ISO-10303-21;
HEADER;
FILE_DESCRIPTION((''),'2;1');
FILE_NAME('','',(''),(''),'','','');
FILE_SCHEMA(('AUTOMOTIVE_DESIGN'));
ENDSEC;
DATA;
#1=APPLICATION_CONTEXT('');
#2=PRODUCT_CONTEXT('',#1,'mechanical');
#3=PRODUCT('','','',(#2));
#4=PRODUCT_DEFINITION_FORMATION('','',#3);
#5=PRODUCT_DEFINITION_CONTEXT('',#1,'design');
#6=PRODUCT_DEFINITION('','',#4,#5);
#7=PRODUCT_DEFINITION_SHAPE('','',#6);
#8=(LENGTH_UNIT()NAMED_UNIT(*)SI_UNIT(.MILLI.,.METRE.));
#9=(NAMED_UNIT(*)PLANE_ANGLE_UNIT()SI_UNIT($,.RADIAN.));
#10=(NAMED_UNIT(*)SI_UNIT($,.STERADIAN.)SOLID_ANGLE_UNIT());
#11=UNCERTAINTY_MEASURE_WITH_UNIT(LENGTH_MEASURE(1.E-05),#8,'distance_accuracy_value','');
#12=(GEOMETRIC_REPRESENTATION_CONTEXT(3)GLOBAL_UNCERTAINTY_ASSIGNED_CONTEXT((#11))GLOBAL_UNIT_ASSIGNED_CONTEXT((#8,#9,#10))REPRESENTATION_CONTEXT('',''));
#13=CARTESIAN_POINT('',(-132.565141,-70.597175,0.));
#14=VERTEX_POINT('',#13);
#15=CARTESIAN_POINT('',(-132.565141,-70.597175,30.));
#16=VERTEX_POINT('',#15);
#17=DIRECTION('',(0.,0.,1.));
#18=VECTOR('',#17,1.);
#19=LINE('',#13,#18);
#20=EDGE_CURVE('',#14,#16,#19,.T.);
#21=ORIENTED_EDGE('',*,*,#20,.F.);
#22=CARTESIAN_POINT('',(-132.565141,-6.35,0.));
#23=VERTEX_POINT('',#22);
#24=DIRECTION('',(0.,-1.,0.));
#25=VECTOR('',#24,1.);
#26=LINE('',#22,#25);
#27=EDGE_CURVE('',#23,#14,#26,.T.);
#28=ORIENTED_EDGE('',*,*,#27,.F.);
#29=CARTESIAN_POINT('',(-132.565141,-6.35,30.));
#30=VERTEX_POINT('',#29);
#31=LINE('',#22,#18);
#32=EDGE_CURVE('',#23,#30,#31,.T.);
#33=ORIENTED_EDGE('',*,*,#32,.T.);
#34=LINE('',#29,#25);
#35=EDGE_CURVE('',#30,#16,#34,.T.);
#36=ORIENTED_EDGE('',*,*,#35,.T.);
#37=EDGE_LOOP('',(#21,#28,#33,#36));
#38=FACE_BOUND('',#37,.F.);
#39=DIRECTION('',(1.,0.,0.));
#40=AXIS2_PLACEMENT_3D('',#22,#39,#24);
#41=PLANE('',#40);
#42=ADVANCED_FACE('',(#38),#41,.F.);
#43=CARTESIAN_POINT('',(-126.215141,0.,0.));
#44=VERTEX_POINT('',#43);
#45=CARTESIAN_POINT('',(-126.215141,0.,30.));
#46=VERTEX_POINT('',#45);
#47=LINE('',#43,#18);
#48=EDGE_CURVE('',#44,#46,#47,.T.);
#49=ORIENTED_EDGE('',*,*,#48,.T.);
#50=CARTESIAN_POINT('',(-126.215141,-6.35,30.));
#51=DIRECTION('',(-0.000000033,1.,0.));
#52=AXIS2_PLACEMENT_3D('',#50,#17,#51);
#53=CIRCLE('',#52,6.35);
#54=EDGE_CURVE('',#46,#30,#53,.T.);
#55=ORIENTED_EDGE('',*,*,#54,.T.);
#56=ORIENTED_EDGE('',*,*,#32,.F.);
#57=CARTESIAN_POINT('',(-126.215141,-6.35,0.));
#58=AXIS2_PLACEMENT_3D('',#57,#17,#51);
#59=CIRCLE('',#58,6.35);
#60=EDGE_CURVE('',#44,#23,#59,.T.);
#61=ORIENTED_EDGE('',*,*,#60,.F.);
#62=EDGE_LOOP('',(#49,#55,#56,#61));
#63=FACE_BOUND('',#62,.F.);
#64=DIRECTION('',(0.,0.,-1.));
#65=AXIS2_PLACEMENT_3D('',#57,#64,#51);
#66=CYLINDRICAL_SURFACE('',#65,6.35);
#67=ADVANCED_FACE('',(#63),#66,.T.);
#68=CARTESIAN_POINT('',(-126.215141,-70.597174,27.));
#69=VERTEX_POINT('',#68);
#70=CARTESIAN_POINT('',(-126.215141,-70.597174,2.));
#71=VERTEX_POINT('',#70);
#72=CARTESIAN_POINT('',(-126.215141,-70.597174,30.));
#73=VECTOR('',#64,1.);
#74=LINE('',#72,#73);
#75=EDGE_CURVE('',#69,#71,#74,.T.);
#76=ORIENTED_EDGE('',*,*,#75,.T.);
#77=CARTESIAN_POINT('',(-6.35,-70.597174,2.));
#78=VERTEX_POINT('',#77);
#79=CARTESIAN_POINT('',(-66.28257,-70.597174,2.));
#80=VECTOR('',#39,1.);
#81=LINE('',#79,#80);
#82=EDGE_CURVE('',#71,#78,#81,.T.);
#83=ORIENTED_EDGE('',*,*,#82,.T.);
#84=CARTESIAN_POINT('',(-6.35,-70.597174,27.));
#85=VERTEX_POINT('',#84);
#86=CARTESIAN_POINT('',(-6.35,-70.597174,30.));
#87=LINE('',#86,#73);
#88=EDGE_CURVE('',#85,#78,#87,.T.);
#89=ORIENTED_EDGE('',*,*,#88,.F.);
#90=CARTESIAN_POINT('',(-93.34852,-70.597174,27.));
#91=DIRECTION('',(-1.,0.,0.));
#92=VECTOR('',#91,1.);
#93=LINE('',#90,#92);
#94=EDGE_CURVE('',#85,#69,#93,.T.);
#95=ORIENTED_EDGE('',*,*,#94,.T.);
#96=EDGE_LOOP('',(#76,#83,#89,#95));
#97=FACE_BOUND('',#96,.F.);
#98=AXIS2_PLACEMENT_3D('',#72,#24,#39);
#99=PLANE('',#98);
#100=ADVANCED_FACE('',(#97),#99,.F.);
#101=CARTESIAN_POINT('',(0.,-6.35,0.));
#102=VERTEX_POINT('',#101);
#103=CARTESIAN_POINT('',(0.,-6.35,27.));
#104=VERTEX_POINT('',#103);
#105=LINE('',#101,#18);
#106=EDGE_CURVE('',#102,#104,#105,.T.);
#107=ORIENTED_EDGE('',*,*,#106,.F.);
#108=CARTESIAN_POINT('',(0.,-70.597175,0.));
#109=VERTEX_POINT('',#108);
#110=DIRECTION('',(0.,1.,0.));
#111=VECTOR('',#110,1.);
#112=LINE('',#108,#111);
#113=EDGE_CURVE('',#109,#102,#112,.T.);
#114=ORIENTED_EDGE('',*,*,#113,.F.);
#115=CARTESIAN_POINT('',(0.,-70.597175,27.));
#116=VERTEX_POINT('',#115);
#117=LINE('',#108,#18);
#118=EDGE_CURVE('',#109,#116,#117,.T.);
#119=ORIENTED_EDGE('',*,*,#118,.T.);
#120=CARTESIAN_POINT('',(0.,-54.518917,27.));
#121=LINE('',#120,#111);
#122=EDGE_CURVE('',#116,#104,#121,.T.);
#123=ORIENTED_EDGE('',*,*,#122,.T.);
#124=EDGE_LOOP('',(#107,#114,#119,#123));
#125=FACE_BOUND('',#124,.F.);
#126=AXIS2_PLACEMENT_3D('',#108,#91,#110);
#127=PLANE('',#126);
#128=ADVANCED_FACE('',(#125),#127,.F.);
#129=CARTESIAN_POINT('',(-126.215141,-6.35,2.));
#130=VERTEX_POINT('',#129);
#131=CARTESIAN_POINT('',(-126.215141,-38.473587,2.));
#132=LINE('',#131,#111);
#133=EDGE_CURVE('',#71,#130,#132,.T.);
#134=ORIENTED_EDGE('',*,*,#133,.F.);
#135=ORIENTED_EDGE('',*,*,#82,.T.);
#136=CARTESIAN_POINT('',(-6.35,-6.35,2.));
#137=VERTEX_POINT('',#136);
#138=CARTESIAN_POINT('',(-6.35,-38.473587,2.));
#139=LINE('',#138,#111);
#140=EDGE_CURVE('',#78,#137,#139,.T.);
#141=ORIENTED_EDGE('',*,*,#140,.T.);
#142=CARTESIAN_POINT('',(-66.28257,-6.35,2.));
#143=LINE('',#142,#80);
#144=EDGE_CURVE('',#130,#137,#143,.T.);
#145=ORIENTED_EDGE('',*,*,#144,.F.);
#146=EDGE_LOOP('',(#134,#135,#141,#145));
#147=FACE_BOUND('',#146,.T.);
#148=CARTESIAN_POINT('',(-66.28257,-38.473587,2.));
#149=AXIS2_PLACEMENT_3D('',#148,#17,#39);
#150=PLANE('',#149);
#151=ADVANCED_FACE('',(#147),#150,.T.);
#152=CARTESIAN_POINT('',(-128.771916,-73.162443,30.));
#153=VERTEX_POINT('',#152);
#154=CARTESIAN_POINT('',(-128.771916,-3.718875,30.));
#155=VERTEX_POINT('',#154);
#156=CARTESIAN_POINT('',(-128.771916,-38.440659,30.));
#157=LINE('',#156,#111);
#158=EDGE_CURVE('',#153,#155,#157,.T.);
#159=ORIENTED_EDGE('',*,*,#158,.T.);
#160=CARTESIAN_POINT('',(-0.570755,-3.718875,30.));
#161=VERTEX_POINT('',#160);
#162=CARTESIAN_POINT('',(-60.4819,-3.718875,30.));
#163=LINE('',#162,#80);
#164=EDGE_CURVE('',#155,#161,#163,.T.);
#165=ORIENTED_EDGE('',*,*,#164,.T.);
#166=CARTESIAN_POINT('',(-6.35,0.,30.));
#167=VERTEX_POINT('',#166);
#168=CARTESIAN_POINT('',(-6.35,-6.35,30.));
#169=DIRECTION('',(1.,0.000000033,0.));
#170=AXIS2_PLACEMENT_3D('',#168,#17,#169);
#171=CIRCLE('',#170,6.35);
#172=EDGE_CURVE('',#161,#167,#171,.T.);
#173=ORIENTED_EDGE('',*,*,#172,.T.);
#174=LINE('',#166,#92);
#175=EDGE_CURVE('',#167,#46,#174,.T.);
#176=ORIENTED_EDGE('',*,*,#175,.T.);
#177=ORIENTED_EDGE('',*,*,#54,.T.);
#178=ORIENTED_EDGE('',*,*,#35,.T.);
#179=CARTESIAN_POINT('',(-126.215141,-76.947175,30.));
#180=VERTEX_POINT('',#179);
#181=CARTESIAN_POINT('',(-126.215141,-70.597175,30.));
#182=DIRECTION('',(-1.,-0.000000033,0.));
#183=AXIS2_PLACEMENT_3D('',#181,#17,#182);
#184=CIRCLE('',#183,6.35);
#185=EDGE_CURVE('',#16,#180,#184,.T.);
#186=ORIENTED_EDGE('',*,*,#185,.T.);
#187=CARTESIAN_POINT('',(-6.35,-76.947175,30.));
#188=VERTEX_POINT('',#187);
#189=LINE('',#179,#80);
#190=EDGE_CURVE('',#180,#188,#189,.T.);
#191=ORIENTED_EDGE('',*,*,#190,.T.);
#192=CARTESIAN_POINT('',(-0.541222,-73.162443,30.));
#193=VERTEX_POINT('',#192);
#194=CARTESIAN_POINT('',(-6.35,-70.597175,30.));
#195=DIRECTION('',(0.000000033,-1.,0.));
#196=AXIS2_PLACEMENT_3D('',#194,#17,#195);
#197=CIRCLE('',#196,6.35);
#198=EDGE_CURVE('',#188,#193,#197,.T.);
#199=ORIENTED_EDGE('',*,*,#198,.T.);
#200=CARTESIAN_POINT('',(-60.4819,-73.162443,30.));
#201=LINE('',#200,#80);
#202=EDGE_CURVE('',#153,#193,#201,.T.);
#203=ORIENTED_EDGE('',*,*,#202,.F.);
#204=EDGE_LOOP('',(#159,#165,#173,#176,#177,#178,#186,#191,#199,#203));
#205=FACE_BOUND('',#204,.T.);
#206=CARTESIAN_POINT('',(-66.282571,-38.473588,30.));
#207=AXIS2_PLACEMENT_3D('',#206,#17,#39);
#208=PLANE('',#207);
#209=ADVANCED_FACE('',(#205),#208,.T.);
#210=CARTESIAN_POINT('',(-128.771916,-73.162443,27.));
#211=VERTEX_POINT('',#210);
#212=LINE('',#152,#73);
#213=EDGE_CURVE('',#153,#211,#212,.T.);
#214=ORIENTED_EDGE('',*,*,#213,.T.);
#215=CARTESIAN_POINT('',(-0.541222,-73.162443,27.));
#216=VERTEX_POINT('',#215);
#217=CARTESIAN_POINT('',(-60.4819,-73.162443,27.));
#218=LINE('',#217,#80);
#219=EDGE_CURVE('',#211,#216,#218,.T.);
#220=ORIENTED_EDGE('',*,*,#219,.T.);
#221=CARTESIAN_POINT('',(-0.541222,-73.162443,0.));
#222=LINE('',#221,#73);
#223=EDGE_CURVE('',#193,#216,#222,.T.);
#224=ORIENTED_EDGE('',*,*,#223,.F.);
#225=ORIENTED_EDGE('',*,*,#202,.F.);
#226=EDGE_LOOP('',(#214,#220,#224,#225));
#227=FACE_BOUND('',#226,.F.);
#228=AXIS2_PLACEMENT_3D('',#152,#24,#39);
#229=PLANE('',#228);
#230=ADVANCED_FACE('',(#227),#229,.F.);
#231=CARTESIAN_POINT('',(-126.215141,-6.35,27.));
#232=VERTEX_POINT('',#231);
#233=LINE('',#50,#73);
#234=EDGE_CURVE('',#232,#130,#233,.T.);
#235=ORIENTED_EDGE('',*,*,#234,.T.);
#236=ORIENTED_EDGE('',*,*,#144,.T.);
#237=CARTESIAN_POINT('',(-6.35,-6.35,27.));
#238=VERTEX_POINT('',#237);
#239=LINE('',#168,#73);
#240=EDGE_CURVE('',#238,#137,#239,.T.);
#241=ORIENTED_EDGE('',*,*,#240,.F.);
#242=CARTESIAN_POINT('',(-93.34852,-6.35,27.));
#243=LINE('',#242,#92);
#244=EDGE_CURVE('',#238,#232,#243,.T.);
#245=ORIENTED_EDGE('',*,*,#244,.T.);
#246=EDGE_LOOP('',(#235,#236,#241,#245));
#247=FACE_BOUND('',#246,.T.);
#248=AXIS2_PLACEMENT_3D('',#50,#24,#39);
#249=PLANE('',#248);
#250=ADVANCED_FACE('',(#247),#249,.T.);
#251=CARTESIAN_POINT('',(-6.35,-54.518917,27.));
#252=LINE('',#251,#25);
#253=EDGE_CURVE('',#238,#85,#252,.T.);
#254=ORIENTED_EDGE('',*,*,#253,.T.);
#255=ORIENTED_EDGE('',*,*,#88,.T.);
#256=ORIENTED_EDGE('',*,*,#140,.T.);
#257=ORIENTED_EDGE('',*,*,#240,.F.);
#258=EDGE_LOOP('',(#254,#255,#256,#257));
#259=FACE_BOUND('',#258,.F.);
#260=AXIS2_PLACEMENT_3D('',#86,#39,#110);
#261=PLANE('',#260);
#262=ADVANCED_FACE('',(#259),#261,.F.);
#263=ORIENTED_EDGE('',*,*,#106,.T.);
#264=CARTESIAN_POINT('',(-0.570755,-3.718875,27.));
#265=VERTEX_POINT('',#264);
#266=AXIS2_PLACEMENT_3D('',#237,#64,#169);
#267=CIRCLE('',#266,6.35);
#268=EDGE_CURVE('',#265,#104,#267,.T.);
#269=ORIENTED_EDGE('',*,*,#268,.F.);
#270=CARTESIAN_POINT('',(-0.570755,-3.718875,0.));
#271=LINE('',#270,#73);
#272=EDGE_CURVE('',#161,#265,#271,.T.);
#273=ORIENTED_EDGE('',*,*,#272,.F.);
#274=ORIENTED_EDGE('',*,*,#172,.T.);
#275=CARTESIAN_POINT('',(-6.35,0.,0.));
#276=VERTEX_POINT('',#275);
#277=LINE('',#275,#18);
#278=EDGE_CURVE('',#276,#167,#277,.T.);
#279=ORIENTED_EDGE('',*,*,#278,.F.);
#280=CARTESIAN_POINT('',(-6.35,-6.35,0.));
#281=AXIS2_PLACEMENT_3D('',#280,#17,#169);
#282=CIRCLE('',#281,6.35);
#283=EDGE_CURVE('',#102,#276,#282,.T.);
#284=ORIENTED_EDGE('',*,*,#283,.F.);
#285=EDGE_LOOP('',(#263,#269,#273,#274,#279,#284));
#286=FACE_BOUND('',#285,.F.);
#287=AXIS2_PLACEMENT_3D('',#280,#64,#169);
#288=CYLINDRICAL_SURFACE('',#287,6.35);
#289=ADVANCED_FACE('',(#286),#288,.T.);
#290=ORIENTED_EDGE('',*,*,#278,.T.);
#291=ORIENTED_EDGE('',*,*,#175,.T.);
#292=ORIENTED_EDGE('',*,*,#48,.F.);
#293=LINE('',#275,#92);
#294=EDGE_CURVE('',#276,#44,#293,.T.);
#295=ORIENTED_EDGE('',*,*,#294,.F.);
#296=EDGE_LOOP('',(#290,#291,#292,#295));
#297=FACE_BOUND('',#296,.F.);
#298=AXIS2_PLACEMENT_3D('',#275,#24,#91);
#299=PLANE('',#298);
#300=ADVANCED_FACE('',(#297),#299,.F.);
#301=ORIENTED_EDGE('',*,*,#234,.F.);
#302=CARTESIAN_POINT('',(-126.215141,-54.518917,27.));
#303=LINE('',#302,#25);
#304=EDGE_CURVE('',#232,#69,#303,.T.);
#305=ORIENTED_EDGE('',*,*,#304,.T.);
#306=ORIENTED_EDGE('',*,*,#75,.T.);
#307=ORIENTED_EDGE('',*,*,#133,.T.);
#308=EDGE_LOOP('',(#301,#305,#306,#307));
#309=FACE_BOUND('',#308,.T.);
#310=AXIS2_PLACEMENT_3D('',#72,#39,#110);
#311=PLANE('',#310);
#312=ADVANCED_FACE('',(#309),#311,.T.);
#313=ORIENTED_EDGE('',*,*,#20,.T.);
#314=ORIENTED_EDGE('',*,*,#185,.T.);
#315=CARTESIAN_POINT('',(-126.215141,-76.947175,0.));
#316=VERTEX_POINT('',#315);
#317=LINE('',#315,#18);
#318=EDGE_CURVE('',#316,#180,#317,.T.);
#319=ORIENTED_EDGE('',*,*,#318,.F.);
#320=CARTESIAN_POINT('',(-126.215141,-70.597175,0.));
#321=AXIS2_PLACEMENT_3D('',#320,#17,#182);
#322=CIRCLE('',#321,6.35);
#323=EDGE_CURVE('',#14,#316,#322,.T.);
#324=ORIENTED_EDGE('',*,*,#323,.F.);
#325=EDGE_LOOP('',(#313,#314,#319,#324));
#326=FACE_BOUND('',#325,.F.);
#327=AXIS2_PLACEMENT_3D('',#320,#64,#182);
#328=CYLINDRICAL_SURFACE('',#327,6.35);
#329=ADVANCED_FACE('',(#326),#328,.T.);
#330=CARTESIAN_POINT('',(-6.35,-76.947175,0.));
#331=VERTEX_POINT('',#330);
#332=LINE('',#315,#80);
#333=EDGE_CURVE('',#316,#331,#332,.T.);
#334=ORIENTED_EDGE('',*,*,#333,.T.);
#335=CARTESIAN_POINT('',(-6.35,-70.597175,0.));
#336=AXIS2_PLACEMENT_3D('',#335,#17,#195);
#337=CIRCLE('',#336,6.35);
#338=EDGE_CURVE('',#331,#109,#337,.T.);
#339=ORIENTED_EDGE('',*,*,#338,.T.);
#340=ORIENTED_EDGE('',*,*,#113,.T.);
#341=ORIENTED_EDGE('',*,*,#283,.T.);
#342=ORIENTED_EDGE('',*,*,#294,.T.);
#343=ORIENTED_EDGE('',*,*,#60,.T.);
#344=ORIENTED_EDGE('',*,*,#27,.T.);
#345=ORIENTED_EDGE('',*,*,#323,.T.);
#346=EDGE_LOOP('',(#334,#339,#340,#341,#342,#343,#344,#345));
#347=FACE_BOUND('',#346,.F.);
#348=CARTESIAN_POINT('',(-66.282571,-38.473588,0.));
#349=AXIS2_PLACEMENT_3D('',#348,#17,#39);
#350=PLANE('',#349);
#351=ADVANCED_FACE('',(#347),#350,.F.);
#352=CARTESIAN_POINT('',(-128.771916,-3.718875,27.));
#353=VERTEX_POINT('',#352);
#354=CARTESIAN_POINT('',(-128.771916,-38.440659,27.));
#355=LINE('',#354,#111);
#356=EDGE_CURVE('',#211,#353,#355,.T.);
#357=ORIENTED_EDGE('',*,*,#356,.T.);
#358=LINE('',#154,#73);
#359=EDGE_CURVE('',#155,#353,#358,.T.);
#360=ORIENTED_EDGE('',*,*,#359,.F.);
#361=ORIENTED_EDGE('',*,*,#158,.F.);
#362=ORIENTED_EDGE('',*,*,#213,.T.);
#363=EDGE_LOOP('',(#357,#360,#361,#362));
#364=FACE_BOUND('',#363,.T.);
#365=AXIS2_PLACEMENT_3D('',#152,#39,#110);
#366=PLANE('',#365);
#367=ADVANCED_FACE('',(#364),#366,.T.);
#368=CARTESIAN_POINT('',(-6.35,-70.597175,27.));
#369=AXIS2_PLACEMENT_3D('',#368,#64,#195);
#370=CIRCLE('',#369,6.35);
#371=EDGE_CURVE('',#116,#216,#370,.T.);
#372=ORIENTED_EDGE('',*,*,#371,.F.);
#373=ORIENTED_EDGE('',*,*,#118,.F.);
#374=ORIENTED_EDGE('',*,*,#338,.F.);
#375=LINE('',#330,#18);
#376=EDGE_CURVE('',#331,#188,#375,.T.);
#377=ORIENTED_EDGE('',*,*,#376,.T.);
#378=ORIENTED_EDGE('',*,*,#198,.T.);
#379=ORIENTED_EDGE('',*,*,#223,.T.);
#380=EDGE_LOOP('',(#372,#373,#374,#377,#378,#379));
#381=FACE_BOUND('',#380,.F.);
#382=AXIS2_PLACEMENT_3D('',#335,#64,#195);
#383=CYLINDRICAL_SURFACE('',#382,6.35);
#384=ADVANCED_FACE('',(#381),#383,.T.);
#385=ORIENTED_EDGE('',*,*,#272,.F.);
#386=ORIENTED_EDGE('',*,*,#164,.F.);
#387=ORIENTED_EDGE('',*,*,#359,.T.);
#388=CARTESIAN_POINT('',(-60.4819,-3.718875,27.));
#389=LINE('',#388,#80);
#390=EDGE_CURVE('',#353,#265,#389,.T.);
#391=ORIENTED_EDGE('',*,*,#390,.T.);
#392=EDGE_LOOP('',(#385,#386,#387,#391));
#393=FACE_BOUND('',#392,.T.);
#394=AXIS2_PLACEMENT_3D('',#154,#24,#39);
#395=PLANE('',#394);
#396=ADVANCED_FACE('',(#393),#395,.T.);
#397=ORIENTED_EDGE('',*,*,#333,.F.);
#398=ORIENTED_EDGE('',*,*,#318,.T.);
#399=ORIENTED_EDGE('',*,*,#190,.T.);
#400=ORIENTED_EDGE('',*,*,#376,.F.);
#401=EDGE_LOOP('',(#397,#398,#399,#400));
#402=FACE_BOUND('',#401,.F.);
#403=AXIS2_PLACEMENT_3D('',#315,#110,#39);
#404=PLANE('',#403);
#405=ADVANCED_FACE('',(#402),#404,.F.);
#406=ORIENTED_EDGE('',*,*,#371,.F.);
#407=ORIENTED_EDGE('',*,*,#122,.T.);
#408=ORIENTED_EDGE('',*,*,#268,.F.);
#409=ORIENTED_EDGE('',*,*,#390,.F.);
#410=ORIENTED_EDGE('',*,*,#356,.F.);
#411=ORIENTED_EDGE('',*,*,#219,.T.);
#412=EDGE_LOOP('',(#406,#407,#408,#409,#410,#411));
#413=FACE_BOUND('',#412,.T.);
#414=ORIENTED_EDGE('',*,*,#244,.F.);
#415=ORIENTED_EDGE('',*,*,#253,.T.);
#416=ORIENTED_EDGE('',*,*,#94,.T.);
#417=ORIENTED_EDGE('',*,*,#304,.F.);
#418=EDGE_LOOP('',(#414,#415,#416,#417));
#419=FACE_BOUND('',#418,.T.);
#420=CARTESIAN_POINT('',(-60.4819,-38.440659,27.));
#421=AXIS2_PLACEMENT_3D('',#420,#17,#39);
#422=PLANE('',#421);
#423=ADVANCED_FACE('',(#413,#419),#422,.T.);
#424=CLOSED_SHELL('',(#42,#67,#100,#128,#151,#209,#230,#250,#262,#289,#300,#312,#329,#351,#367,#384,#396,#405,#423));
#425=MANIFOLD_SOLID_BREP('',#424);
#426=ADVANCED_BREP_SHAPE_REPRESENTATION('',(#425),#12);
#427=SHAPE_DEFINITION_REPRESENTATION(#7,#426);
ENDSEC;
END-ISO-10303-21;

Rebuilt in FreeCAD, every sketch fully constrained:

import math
import FreeCAD as App
import Part
import Sketcher
from FreeCAD import Vector


def add_polygon(sketch, points):
    """Adds a closed chain of lines whose ends are joined by coincident constraints."""
    first, n = sketch.GeometryCount, len(points)
    for a, b in zip(points, points[1:] + points[:1]):
        sketch.addGeometry(Part.LineSegment(App.Vector(*a, 0), App.Vector(*b, 0)), False)
    for i in range(n):
        sketch.addConstraint(Sketcher.Constraint("Coincident", first + i, 2, first + (i + 1) % n, 1))

doc = App.newDocument("Part")
body = doc.addObject("PartDesign::Body", "Body")

# Sketch on XY plane
sketch1 = body.newObject("Sketcher::SketchObject", "Sketch")
sketch1.AttachmentSupport = (doc.getObject("XY_Plane"), [""])
sketch1.MapMode = "FlatFace"
sketch1.addGeometry([
    Part.ArcOfCircle(Part.Circle(Vector(-6, -6, 0), Vector(0, 0, 1), 6), math.radians(0), math.radians(90)),  # 0
    Part.LineSegment(Vector(-6, 0, 0), Vector(-126, 0, 0)),  # 1
    Part.ArcOfCircle(Part.Circle(Vector(-126, -6, 0), Vector(0, 0, 1), 6), math.radians(90), math.radians(180)),  # 2
    Part.LineSegment(Vector(-133, -6, 0), Vector(-133, -71, 0)),  # 3
    Part.ArcOfCircle(Part.Circle(Vector(-126, -71, 0), Vector(0, 0, 1), 6), math.radians(-180), math.radians(-90)),  # 4
    Part.LineSegment(Vector(-126, -77, 0), Vector(-6, -77, 0)),  # 5
    Part.ArcOfCircle(Part.Circle(Vector(-6, -71, 0), Vector(0, 0, 1), 6), math.radians(-90), math.radians(0)),  # 6
    Part.LineSegment(Vector(0, -71, 0), Vector(0, -6, 0)),  # 7
], False)
sketch1.addConstraint([
    Sketcher.Constraint("Tangent", 0, 2, 1, 1),
    Sketcher.Constraint("Tangent", 1, 2, 2, 1),
    Sketcher.Constraint("Tangent", 2, 2, 3, 1),
    Sketcher.Constraint("Tangent", 3, 2, 4, 1),
    Sketcher.Constraint("Tangent", 4, 2, 5, 1),
    Sketcher.Constraint("Tangent", 5, 2, 6, 1),
    Sketcher.Constraint("Tangent", 6, 2, 7, 1),
    Sketcher.Constraint("Tangent", 7, 2, 0, 1),
    Sketcher.Constraint("Horizontal", 1),
    Sketcher.Constraint("Vertical", 3),
    Sketcher.Constraint("Horizontal", 5),
    Sketcher.Constraint("Vertical", 7),
    Sketcher.Constraint("Equal", 0, 2),
    Sketcher.Constraint("Equal", 2, 4),
    Sketcher.Constraint("Equal", 4, 6),
    Sketcher.Constraint("PointOnObject", 0, 2, -1),
    Sketcher.Constraint("PointOnObject", 6, 2, -2),
    Sketcher.Constraint("Radius", 0, 6.35),
    Sketcher.Constraint("DistanceX", 1, 2, 1, 1, 119.865141),
    Sketcher.Constraint("DistanceY", 3, 2, 3, 1, 64.247175),
])
pad1 = body.newObject("PartDesign::Pad", "Pad")
pad1.Profile = sketch1
pad1.Length = 30

# Sketch on XY plane
sketch2 = body.newObject("Sketcher::SketchObject", "Sketch001")
sketch2.AttachmentSupport = (doc.getObject("XY_Plane"), [""])
sketch2.MapMode = "FlatFace"
sketch2.AttachmentOffset = App.Placement(Vector(0, 0, 30), App.Rotation())
add_polygon(sketch2, [(-126, -6), (-126, -71), (-6, -71), (-6, -6)])  # lines 0-3
sketch2.addConstraint([
    Sketcher.Constraint("Vertical", 0),
    Sketcher.Constraint("Horizontal", 1),
    Sketcher.Constraint("Vertical", 2),
    Sketcher.Constraint("Horizontal", 3),
    Sketcher.Constraint("DistanceX", 1, 2, -1, 1, 6.35),
    Sketcher.Constraint("DistanceY", 2, 2, -1, 1, 6.35),
    Sketcher.Constraint("DistanceX", 1, 1, 1, 2, 119.865141),
    Sketcher.Constraint("DistanceY", 0, 2, 0, 1, 64.247175),
])
pocket1 = body.newObject("PartDesign::Pocket", "Pocket")
pocket1.Profile = sketch2
pocket1.Length = 28

# Sketch on XY plane
sketch3 = body.newObject("Sketcher::SketchObject", "Sketch002")
sketch3.AttachmentSupport = (doc.getObject("XY_Plane"), [""])
sketch3.MapMode = "FlatFace"
sketch3.AttachmentOffset = App.Placement(Vector(0, 0, 30), App.Rotation())
add_polygon(sketch3, [(-129, -4), (-129, -73), (8, -73), (8, -4)])  # lines 0-3
sketch3.addConstraint([
    Sketcher.Constraint("Vertical", 0),
    Sketcher.Constraint("Horizontal", 1),
    Sketcher.Constraint("Vertical", 2),
    Sketcher.Constraint("Horizontal", 3),
    Sketcher.Constraint("DistanceY", 0, 2, 0, 1, 69.443569),
    Sketcher.Constraint("DistanceX", 1, 1, 1, 2, 136.580032),
    Sketcher.Constraint("DistanceX", 0, 2, -1, 1, 128.771916),
    Sketcher.Constraint("DistanceY", 0, 2, -1, 1, 73.162443),
])
pocket2 = body.newObject("PartDesign::Pocket", "Pocket001")
pocket2.Profile = sketch3
pocket2.Length = 3

doc.recompute()
